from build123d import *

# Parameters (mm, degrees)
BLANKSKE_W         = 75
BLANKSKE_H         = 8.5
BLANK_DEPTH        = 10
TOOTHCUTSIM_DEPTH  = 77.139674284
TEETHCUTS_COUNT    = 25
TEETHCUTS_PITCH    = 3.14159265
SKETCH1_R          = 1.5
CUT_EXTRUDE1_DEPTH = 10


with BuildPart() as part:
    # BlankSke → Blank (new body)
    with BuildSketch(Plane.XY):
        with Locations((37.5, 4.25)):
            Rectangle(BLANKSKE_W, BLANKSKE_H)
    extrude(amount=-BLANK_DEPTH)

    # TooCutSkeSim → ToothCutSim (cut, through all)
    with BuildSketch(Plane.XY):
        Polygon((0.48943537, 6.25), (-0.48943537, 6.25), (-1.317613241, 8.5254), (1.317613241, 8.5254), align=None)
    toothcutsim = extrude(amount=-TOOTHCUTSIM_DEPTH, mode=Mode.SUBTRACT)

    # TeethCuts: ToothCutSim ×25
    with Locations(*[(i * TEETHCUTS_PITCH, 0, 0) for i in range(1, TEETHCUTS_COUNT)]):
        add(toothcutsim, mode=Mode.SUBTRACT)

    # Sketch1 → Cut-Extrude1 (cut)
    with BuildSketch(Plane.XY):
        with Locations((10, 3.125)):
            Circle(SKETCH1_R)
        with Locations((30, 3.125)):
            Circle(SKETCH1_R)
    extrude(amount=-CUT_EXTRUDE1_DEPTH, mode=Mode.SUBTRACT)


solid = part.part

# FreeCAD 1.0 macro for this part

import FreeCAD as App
import Part
import Sketcher
Q = App.Units.Quantity

doc = App.newDocument("Part")
params = doc.addObject("Spreadsheet::Sheet", "Params")
for row, (alias, value) in enumerate([
    ("sketch1_width", "75 mm"),
    ("sketch1_height", "8.5 mm"),
    ("pad1_length", "10 mm"),
    ("linearpattern_pitch", "3.141593 mm"),
    ("sketch3_diameter", "3 mm"),
    ("pocket2_length", "10 mm"),
], start=1):
    params.set(f"A{row}", alias)
    params.set(f"B{row}", "=" + value)
    params.setAlias(f"B{row}", alias)

body = doc.addObject("PartDesign::Body", "Body")

# Sketch on XY plane
sketch1 = body.newObject("Sketcher::SketchObject", "Sketch")
sketch1.AttachmentSupport = (doc.getObject("XY_Plane"), [""])
sketch1.MapMode = "FlatFace"
sketch1.addGeometry(Part.LineSegment(App.Vector(0, 8, 0), App.Vector(0, 0, 0)), False)
sketch1.addGeometry(Part.LineSegment(App.Vector(0, 0, 0), App.Vector(75, 0, 0)), False)
sketch1.addGeometry(Part.LineSegment(App.Vector(75, 0, 0), App.Vector(75, 8, 0)), False)
sketch1.addGeometry(Part.LineSegment(App.Vector(75, 8, 0), App.Vector(0, 8, 0)), False)
sketch1.addConstraint(Sketcher.Constraint("Coincident", 0, 2, 1, 1))
sketch1.addConstraint(Sketcher.Constraint("Coincident", 1, 2, 2, 1))
sketch1.addConstraint(Sketcher.Constraint("Coincident", 2, 2, 3, 1))
sketch1.addConstraint(Sketcher.Constraint("Coincident", 3, 2, 0, 1))
sketch1.addConstraint(Sketcher.Constraint("Vertical", 0))
sketch1.addConstraint(Sketcher.Constraint("Horizontal", 1))
sketch1.addConstraint(Sketcher.Constraint("Vertical", 2))
sketch1.addConstraint(Sketcher.Constraint("Horizontal", 3))
sketch1.addConstraint(Sketcher.Constraint("Coincident", 0, 2, -1, 1))
sketch1.addConstraint(Sketcher.Constraint("DistanceX", 1, 1, 1, 2, 75.0))
sketch1.addConstraint(Sketcher.Constraint("DistanceY", 0, 2, 0, 1, 8.5))
sketch1.setExpression("Constraints[9]", "Params.sketch1_width")
sketch1.setExpression("Constraints[10]", "Params.sketch1_height")
pad1 = body.newObject("PartDesign::Pad", "Pad")
pad1.Profile = sketch1
pad1.setExpression("Length", "Params.pad1_length")
pad1.Reversed = True

# Sketch on XY plane
sketch2 = body.newObject("Sketcher::SketchObject", "Sketch001")
sketch2.AttachmentSupport = (doc.getObject("XY_Plane"), [""])
sketch2.MapMode = "FlatFace"
sketch2.addGeometry(Part.LineSegment(App.Vector(-0.5, 6.2, 0), App.Vector(0.5, 6.2, 0)), False)
sketch2.addGeometry(Part.LineSegment(App.Vector(0.5, 6.2, 0), App.Vector(1.3, 8.5, 0)), False)
sketch2.addGeometry(Part.LineSegment(App.Vector(1.3, 8.5, 0), App.Vector(-1.3, 8.5, 0)), False)
sketch2.addGeometry(Part.LineSegment(App.Vector(-1.3, 8.5, 0), App.Vector(-0.5, 6.2, 0)), False)
sketch2.addConstraint(Sketcher.Constraint("Coincident", 0, 2, 1, 1))
sketch2.addConstraint(Sketcher.Constraint("Coincident", 1, 2, 2, 1))
sketch2.addConstraint(Sketcher.Constraint("Coincident", 2, 2, 3, 1))
sketch2.addConstraint(Sketcher.Constraint("Coincident", 3, 2, 0, 1))
sketch2.addConstraint(Sketcher.Constraint("Horizontal", 0))
sketch2.addConstraint(Sketcher.Constraint("Horizontal", 2))
sketch2.addConstraint(Sketcher.Constraint("Equal", 1, 3))
sketch2.addConstraint(Sketcher.Constraint("Angle", 1, Q("70 deg")))
sketch2.addConstraint(Sketcher.Constraint("DistanceY", -1, 1, 0, 2, 6.25))
sketch2.addConstraint(Sketcher.Constraint("DistanceX", 0, 1, 0, 2, 0.978871))
sketch2.addConstraint(Sketcher.Constraint("DistanceY", -1, 1, 1, 2, 8.5254))
sketch2.addConstraint(Sketcher.Constraint("DistanceX", -1, 1, 0, 2, 0.489435))
pocket1 = body.newObject("PartDesign::Pocket", "Pocket")
pocket1.Profile = sketch2
pocket1.Type = "ThroughAll"
doc.recompute()

linearpattern = body.newObject("PartDesign::LinearPattern", "LinearPattern")
linearpattern.Originals = [pocket1]
linearpattern.Direction = (doc.getObject("X_Axis"), [""])
linearpattern.Mode = "offset"
linearpattern.setExpression("Offset", "Params.linearpattern_pitch")
linearpattern.Occurrences = 25
body.Tip = linearpattern

# Sketch on XY plane
sketch3 = body.newObject("Sketcher::SketchObject", "Sketch002")
sketch3.AttachmentSupport = (doc.getObject("XY_Plane"), [""])
sketch3.MapMode = "FlatFace"
sketch3.addGeometry(Part.Circle(App.Vector(10, 3.1, 0), App.Vector(0, 0, 1), 1.5), False)
sketch3.addGeometry(Part.Circle(App.Vector(30, 3.1, 0), App.Vector(0, 0, 1), 1.5), False)
sketch3.addConstraint(Sketcher.Constraint("Equal", 0, 1))
sketch3.addConstraint(Sketcher.Constraint("Horizontal", 0, 3, 1, 3))
sketch3.addConstraint(Sketcher.Constraint("Diameter", 0, 3.0))
sketch3.addConstraint(Sketcher.Constraint("DistanceX", -1, 1, 0, 3, 10.0))
sketch3.addConstraint(Sketcher.Constraint("DistanceX", -1, 1, 1, 3, 30.0))
sketch3.addConstraint(Sketcher.Constraint("DistanceY", -1, 1, 0, 3, 3.125))
sketch3.setExpression("Constraints[2]", "Params.sketch3_diameter")
pocket2 = body.newObject("PartDesign::Pocket", "Pocket001")
pocket2.Profile = sketch3
pocket2.setExpression("Length", "Params.pocket2_length")

doc.recompute()
